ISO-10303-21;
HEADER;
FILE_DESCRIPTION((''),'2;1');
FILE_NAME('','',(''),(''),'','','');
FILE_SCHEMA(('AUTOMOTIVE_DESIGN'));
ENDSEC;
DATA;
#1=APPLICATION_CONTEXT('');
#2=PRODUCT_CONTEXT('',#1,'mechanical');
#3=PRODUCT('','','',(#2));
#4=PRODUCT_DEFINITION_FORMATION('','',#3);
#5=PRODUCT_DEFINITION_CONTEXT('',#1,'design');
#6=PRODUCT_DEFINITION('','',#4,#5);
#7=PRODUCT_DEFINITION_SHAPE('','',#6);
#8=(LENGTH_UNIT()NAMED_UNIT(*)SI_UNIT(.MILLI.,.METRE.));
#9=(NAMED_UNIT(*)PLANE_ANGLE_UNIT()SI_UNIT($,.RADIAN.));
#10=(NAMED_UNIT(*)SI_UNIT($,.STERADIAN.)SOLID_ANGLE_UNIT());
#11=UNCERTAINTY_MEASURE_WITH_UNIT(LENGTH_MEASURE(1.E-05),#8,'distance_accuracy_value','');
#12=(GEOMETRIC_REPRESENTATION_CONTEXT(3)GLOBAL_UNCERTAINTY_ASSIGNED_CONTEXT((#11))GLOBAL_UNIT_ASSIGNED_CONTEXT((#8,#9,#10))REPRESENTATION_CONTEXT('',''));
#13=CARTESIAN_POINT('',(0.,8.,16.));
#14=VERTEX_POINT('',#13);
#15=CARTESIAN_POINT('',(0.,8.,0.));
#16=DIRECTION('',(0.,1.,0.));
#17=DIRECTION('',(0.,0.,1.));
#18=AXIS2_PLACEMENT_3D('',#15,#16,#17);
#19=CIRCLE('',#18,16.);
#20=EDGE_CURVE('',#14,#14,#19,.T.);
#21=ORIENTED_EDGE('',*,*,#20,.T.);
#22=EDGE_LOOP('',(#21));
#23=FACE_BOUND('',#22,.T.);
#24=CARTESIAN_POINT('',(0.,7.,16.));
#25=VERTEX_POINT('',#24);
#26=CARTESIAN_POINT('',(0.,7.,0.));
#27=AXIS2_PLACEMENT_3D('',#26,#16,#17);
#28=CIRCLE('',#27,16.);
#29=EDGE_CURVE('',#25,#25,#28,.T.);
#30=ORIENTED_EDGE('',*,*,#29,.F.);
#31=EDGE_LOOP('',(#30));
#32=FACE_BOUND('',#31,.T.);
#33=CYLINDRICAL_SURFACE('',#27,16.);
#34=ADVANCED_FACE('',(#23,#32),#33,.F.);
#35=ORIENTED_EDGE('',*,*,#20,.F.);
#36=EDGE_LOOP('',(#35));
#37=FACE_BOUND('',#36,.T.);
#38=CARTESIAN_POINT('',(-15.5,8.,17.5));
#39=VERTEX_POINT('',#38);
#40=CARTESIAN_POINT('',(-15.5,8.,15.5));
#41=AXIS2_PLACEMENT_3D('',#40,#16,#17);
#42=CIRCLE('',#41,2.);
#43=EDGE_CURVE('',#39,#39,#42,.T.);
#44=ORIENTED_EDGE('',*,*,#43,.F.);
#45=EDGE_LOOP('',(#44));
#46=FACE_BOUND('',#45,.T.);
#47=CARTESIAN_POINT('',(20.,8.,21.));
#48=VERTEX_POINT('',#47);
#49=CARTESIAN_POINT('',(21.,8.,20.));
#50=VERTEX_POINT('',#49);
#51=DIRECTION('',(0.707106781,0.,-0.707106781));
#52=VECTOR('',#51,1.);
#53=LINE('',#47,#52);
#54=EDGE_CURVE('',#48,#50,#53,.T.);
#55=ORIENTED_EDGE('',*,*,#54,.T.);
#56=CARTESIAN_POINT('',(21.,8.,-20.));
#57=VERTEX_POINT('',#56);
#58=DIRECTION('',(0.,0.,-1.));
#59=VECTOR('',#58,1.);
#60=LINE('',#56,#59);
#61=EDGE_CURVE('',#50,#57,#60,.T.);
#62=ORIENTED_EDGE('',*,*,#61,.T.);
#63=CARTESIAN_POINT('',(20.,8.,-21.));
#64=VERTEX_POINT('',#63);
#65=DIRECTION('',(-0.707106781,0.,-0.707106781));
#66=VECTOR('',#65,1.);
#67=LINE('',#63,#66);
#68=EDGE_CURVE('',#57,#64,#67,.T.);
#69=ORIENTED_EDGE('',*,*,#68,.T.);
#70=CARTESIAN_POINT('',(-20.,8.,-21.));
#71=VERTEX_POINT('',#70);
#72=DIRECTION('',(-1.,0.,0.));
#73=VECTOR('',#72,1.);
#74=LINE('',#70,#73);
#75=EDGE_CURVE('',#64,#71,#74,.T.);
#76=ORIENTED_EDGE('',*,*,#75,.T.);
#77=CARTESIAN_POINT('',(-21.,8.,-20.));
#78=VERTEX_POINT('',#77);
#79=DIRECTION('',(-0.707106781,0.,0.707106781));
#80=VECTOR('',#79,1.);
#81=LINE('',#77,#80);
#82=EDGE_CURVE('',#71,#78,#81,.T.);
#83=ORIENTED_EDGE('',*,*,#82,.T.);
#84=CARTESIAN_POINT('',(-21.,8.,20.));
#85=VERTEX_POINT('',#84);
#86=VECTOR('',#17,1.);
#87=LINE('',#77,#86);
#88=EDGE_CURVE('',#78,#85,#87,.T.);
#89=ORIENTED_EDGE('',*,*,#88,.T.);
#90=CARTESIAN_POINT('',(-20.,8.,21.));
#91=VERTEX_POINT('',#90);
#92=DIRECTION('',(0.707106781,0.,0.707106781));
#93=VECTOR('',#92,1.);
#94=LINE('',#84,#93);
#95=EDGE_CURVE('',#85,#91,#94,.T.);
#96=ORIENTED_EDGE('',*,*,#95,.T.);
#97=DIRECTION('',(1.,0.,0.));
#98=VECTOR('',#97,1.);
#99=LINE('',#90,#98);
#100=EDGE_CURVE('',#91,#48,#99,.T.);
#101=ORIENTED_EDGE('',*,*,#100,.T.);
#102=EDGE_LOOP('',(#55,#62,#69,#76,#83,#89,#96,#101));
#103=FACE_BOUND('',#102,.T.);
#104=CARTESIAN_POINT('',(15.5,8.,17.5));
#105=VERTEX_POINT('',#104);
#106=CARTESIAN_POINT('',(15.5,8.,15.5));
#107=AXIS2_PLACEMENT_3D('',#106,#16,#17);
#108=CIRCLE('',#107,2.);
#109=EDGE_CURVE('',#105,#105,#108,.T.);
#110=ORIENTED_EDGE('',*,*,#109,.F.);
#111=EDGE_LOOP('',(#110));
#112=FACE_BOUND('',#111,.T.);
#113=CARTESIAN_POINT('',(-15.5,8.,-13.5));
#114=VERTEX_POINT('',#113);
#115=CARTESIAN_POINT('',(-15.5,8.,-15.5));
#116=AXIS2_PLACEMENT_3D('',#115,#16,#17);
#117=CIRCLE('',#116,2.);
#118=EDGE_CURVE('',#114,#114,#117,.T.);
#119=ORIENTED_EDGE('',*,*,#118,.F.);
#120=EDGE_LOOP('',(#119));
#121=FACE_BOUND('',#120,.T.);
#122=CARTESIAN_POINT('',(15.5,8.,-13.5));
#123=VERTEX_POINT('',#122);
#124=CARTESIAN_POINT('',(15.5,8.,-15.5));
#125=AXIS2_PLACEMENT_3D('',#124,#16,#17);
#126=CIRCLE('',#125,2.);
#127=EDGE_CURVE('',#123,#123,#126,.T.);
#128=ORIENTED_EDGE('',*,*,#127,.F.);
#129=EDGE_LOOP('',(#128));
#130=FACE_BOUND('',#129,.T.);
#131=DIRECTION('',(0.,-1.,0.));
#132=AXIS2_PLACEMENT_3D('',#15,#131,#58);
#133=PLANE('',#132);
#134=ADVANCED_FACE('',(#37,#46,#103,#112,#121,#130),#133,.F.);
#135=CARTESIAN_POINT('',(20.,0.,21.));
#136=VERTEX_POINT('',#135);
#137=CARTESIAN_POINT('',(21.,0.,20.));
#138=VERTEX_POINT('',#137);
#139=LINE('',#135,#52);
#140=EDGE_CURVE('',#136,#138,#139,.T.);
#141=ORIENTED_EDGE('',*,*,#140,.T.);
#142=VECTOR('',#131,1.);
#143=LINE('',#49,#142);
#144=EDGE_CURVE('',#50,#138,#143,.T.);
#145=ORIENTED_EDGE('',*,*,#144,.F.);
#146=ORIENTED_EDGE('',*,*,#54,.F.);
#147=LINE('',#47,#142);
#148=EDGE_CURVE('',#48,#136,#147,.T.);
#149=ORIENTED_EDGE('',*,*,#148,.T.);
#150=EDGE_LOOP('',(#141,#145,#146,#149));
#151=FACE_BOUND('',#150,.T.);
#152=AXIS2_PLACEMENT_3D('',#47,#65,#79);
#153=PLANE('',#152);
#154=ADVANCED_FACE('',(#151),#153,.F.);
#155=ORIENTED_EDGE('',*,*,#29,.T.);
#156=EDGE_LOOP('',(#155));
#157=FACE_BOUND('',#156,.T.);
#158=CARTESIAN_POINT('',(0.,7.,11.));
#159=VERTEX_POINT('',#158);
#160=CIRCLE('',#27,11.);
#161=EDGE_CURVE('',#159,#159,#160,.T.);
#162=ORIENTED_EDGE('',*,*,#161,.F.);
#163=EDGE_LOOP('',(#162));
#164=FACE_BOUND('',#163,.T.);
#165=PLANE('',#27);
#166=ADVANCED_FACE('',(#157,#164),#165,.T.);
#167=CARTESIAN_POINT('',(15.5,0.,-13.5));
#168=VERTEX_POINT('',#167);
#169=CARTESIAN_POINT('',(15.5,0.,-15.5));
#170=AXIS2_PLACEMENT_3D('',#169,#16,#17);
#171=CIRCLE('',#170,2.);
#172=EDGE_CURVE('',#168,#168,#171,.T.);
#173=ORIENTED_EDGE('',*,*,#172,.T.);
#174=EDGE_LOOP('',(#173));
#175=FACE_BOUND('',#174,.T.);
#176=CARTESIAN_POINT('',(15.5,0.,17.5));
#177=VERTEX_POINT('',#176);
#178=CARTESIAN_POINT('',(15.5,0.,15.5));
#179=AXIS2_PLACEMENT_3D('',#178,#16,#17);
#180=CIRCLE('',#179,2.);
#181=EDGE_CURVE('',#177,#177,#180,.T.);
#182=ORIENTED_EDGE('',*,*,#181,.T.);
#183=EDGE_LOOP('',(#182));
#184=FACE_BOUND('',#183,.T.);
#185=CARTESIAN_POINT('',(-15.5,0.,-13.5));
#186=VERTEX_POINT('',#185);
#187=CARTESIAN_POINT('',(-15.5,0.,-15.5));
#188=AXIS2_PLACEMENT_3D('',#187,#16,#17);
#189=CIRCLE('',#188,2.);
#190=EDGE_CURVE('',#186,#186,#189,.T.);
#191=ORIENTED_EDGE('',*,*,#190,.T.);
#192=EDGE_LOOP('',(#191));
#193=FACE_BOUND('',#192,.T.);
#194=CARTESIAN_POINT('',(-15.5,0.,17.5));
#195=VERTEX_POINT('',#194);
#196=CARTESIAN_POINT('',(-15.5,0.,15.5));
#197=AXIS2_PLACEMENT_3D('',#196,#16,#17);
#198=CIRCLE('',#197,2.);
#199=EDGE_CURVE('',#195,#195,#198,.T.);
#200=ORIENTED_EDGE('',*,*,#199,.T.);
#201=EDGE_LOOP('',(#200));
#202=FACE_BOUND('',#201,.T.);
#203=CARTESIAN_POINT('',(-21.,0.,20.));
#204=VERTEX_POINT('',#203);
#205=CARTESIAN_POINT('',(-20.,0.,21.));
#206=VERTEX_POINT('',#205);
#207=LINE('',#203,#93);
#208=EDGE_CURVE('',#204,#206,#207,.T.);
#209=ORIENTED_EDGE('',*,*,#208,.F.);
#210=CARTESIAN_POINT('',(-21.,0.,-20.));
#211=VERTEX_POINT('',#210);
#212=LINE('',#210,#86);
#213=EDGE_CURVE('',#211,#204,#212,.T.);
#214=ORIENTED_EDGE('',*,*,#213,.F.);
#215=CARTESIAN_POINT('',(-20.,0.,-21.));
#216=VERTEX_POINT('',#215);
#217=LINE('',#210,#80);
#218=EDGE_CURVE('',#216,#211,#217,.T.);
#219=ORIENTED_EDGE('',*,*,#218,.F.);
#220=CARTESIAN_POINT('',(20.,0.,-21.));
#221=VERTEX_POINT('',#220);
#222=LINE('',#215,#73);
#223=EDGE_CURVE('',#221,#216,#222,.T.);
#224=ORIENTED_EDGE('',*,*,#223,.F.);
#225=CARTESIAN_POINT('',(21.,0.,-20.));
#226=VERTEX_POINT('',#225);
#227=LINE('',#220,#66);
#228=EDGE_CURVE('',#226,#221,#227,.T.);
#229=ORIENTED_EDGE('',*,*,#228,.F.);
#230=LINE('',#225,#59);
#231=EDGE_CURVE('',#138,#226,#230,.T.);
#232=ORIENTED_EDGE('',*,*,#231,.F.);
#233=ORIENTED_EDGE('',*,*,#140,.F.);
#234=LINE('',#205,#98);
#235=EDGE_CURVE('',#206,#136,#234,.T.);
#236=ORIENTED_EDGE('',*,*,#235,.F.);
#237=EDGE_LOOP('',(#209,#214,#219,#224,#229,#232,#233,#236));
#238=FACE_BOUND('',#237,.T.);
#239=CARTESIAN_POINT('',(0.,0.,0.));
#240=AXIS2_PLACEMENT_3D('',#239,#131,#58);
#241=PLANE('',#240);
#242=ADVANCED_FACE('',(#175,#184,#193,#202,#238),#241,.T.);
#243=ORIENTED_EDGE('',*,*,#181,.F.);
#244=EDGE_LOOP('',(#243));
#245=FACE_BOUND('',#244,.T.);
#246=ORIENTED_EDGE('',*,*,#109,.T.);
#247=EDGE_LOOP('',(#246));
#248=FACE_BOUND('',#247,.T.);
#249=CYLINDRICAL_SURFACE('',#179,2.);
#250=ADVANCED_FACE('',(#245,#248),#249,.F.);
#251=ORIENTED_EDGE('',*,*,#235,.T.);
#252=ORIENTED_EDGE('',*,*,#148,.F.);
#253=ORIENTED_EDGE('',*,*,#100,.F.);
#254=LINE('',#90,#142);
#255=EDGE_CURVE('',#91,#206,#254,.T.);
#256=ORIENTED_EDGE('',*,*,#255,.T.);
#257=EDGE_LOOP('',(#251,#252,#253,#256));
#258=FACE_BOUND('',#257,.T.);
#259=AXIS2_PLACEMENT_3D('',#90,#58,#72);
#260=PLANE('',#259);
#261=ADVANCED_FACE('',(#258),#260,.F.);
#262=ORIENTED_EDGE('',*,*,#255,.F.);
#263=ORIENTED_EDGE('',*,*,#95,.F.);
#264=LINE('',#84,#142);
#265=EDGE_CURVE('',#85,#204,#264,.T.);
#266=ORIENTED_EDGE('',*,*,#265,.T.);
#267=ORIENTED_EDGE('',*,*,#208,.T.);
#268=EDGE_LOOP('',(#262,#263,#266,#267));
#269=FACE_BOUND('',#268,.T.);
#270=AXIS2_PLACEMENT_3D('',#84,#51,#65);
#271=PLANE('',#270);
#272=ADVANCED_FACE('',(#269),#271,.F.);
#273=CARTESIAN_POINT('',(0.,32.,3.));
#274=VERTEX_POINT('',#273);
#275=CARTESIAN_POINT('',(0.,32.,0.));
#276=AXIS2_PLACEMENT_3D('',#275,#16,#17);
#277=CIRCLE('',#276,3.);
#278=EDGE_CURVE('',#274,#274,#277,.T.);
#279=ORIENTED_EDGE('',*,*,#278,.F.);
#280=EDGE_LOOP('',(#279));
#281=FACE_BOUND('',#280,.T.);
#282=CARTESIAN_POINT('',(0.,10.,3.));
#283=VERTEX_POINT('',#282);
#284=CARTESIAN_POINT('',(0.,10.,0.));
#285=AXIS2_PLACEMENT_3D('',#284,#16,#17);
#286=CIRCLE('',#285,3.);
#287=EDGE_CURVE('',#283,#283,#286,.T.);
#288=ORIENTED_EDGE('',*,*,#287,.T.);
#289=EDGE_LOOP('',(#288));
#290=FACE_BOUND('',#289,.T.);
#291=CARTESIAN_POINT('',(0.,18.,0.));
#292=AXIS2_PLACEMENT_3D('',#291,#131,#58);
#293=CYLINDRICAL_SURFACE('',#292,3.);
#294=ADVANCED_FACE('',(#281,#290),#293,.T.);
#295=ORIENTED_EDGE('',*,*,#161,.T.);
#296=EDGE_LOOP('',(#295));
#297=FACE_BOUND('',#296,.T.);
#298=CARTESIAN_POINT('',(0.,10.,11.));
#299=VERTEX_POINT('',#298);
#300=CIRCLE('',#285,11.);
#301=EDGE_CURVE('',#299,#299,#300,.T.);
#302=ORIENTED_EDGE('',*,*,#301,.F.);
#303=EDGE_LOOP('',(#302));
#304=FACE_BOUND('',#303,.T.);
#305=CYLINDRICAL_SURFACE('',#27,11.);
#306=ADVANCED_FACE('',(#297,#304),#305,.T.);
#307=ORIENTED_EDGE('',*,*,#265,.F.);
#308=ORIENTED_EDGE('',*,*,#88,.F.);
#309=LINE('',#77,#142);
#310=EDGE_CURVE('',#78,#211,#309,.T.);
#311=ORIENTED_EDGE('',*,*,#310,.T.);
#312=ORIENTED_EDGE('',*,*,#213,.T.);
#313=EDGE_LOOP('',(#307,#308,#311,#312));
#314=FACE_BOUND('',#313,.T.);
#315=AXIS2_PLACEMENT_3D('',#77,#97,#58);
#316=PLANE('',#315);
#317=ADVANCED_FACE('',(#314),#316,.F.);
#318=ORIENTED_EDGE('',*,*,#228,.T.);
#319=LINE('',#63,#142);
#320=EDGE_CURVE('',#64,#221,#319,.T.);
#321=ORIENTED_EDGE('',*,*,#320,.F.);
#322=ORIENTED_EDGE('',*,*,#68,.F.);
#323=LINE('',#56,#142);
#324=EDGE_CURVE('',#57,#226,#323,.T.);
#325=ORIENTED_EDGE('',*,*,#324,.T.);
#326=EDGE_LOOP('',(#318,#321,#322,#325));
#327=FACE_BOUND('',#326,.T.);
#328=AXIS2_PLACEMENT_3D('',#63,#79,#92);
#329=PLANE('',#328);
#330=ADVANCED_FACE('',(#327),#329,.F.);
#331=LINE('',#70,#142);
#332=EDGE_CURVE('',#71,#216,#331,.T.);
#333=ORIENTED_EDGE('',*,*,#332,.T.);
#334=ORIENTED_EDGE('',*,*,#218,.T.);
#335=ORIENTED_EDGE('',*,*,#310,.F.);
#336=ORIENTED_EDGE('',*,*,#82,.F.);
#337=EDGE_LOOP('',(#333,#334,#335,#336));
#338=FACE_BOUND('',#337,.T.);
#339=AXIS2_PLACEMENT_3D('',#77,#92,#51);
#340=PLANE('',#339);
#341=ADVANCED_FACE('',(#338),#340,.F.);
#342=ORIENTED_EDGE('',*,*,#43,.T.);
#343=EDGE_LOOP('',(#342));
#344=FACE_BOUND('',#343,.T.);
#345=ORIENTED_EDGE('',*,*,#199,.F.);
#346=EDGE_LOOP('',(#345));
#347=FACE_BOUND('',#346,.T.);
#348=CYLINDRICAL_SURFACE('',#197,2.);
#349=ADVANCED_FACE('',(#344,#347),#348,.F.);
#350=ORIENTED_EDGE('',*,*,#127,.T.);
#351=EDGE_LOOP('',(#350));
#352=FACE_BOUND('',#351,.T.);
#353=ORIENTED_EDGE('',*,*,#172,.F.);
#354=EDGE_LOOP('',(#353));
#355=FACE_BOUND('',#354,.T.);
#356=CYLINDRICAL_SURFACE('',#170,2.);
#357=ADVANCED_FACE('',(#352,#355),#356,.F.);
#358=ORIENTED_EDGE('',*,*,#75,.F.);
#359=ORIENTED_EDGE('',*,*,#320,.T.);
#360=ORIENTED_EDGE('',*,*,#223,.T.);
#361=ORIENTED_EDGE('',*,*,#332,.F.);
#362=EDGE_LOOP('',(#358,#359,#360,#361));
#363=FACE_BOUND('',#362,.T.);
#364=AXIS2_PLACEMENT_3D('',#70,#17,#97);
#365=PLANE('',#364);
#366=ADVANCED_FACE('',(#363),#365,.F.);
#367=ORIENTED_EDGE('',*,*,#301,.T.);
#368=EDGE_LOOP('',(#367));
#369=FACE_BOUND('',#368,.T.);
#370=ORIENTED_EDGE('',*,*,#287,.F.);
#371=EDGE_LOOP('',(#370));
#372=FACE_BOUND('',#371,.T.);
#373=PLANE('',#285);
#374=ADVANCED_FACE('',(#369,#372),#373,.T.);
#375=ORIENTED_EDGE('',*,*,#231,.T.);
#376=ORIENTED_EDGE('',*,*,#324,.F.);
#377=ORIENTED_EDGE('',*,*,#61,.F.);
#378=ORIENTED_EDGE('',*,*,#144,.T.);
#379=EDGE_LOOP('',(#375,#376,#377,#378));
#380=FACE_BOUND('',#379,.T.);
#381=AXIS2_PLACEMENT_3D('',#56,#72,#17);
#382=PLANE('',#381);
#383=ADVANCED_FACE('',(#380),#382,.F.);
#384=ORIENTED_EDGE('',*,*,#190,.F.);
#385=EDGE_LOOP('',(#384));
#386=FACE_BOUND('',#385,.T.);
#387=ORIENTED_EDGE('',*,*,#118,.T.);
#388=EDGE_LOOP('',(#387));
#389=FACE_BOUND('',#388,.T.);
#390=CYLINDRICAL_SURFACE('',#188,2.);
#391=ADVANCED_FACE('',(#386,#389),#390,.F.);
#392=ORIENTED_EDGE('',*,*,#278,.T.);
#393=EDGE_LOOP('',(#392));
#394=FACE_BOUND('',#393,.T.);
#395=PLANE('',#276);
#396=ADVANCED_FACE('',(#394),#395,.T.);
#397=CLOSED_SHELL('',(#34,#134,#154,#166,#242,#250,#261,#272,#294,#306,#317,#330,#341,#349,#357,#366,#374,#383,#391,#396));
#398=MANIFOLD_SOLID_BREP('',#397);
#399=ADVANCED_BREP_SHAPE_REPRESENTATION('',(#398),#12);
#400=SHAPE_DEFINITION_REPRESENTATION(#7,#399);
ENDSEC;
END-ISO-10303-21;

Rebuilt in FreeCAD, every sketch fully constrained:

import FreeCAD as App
import Part
import Sketcher
from FreeCAD import Vector
Q = App.Units.Quantity


def add_polygon(sketch, points):
    """Adds a closed chain of lines whose ends are joined by coincident constraints."""
    first, n = sketch.GeometryCount, len(points)
    for a, b in zip(points, points[1:] + points[:1]):
        sketch.addGeometry(Part.LineSegment(App.Vector(*a, 0), App.Vector(*b, 0)), False)
    for i in range(n):
        sketch.addConstraint(Sketcher.Constraint("Coincident", first + i, 2, first + (i + 1) % n, 1))

doc = App.newDocument("Part")
body = doc.addObject("PartDesign::Body", "Body")

sketch1 = doc.addObject("Sketcher::SketchObject", "Sketch")
body.addObject(sketch1)
sketch1.AttachmentSupport = (doc.XZ_Plane, [""])
sketch1.MapMode = "FlatFace"
add_polygon(sketch1, [(-20, -21), (-21, -20), (-21, 20), (-20, 21), (20, 21), (21, 20), (21, -20), (20, -21)])
sketch1.addConstraint([
    Sketcher.Constraint("Vertical", 1),
    Sketcher.Constraint("Horizontal", 3),
    Sketcher.Constraint("Vertical", 5),
    Sketcher.Constraint("Horizontal", 7),
    Sketcher.Constraint("Symmetric", 0, 2, 4, 2, -1, 1),
    Sketcher.Constraint("Symmetric", 2, 2, 6, 2, -1, 1),
    Sketcher.Constraint("Perpendicular", 0, 2),
    Sketcher.Constraint("Perpendicular", 2, 4),
    Sketcher.Constraint("Perpendicular", 4, 6),
    Sketcher.Constraint("Horizontal", 1, 2, 4, 2),
    Sketcher.Constraint("Vertical", 3, 2, 6, 2),
    Sketcher.Constraint("Equal", 7, 1),
    Sketcher.Constraint("DistanceX", 3, 1, 3, 2, Q("40 mm")),
    Sketcher.Constraint("DistanceX", 0, 2, -1, 1, Q("21 mm")),
])
pad1 = doc.addObject("PartDesign::Pad", "Pad")
body.addObject(pad1)
pad1.Profile = sketch1
pad1.Length = 8
pad1.Reversed = True

sketch2 = doc.addObject("Sketcher::SketchObject", "Sketch001")
body.addObject(sketch2)
sketch2.AttachmentSupport = (doc.XZ_Plane, [""])
sketch2.MapMode = "FlatFace"
sketch2.AttachmentOffset = App.Placement(Vector(0, 0, -8), App.Rotation())
sketch2.addGeometry([
    Part.Circle(Vector(0, 0, 0), Vector(0, 0, 1), 16),
    Part.Circle(Vector(0, 0, 0), Vector(0, 0, 1), 11),
], False)
sketch2.addConstraint([
    Sketcher.Constraint("Coincident", 0, 3, -1, 1),
    Sketcher.Constraint("Coincident", 1, 3, -1, 1),
    Sketcher.Constraint("Diameter", 0, Q("32 mm")),
    Sketcher.Constraint("Diameter", 1, Q("22 mm")),
])
pocket1 = doc.addObject("PartDesign::Pocket", "Pocket")
body.addObject(pocket1)
pocket1.Profile = sketch2
pocket1.Length = 1
pocket1.Reversed = True

sketch3 = doc.addObject("Sketcher::SketchObject", "Sketch002")
body.addObject(sketch3)
sketch3.AttachmentSupport = (doc.XZ_Plane, [""])
sketch3.MapMode = "FlatFace"
sketch3.AttachmentOffset = App.Placement(Vector(0, 0, -8), App.Rotation())
sketch3.addGeometry(Part.Circle(Vector(0, 0, 0), Vector(0, 0, 1), 3), False)
sketch3.addConstraint([
    Sketcher.Constraint("Coincident", 0, 3, -1, 1),
    Sketcher.Constraint("Diameter", 0, Q("6 mm")),
])
pad2 = doc.addObject("PartDesign::Pad", "Pad001")
body.addObject(pad2)
pad2.Profile = sketch3
pad2.Length = 10
pad2.Reversed = True

sketch4 = doc.addObject("Sketcher::SketchObject", "Sketch003")
body.addObject(sketch4)
sketch4.AttachmentSupport = (doc.XZ_Plane, [""])
sketch4.MapMode = "FlatFace"
sketch4.AttachmentOffset = App.Placement(Vector(0, 0, -8), App.Rotation())
sketch4.addGeometry([
    Part.Circle(Vector(-15.5, -15.5, 0), Vector(0, 0, 1), 2),
    Part.Circle(Vector(15.5, -15.5, 0), Vector(0, 0, 1), 2),
    Part.Circle(Vector(15.5, 15.5, 0), Vector(0, 0, 1), 2),
    Part.Circle(Vector(-15.5, 15.5, 0), Vector(0, 0, 1), 2),
], False)
sketch4.addConstraint([
    Sketcher.Constraint("Equal", 0, 1),
    Sketcher.Constraint("Equal", 1, 2),
    Sketcher.Constraint("Equal", 2, 3),
    Sketcher.Constraint("Symmetric", 0, 3, 2, 3, -1, 1),
    Sketcher.Constraint("Symmetric", 1, 3, 3, 3, -1, 1),
    Sketcher.Constraint("Symmetric", 0, 3, 1, 3, -2),
    Sketcher.Constraint("Diameter", 0, Q("4 mm")),
    Sketcher.Constraint("DistanceX", 0, 3, 1, 3, Q("31 mm")),
    Sketcher.Constraint("DistanceY", 1, 3, 2, 3, Q("31 mm")),
])
pocket2 = doc.addObject("PartDesign::Pocket", "Pocket001")
body.addObject(pocket2)
pocket2.Profile = sketch4
pocket2.Type = "ThroughAll"
pocket2.Reversed = True

sketch5 = doc.addObject("Sketcher::SketchObject", "Sketch004")
body.addObject(sketch5)
sketch5.AttachmentSupport = (doc.XZ_Plane, [""])
sketch5.MapMode = "FlatFace"
sketch5.AttachmentOffset = App.Placement(Vector(0, 0, -10), App.Rotation())
sketch5.addGeometry(Part.Circle(Vector(0, 0, 0), Vector(0, 0, 1), 11), False)
sketch5.addConstraint([
    Sketcher.Constraint("Coincident", 0, 3, -1, 1),
    Sketcher.Constraint("Diameter", 0, Q("22 mm")),
])
pad3 = doc.addObject("PartDesign::Pad", "Pad002")
body.addObject(pad3)
pad3.Profile = sketch5
pad3.Length = 2

sketch6 = doc.addObject("Sketcher::SketchObject", "Sketch005")
body.addObject(sketch6)
sketch6.AttachmentSupport = (doc.XZ_Plane, [""])
sketch6.MapMode = "FlatFace"
sketch6.AttachmentOffset = App.Placement(Vector(0, 0, -18), App.Rotation())
sketch6.addGeometry(Part.Circle(Vector(0, 0, 0), Vector(0, 0, 1), 3), False)
sketch6.addConstraint([
    Sketcher.Constraint("Coincident", 0, 3, -1, 1),
    Sketcher.Constraint("Diameter", 0, Q("6 mm")),
])
pad4 = doc.addObject("PartDesign::Pad", "Pad003")
body.addObject(pad4)
pad4.Profile = sketch6
pad4.Length = 14
pad4.Reversed = True

doc.recompute()
